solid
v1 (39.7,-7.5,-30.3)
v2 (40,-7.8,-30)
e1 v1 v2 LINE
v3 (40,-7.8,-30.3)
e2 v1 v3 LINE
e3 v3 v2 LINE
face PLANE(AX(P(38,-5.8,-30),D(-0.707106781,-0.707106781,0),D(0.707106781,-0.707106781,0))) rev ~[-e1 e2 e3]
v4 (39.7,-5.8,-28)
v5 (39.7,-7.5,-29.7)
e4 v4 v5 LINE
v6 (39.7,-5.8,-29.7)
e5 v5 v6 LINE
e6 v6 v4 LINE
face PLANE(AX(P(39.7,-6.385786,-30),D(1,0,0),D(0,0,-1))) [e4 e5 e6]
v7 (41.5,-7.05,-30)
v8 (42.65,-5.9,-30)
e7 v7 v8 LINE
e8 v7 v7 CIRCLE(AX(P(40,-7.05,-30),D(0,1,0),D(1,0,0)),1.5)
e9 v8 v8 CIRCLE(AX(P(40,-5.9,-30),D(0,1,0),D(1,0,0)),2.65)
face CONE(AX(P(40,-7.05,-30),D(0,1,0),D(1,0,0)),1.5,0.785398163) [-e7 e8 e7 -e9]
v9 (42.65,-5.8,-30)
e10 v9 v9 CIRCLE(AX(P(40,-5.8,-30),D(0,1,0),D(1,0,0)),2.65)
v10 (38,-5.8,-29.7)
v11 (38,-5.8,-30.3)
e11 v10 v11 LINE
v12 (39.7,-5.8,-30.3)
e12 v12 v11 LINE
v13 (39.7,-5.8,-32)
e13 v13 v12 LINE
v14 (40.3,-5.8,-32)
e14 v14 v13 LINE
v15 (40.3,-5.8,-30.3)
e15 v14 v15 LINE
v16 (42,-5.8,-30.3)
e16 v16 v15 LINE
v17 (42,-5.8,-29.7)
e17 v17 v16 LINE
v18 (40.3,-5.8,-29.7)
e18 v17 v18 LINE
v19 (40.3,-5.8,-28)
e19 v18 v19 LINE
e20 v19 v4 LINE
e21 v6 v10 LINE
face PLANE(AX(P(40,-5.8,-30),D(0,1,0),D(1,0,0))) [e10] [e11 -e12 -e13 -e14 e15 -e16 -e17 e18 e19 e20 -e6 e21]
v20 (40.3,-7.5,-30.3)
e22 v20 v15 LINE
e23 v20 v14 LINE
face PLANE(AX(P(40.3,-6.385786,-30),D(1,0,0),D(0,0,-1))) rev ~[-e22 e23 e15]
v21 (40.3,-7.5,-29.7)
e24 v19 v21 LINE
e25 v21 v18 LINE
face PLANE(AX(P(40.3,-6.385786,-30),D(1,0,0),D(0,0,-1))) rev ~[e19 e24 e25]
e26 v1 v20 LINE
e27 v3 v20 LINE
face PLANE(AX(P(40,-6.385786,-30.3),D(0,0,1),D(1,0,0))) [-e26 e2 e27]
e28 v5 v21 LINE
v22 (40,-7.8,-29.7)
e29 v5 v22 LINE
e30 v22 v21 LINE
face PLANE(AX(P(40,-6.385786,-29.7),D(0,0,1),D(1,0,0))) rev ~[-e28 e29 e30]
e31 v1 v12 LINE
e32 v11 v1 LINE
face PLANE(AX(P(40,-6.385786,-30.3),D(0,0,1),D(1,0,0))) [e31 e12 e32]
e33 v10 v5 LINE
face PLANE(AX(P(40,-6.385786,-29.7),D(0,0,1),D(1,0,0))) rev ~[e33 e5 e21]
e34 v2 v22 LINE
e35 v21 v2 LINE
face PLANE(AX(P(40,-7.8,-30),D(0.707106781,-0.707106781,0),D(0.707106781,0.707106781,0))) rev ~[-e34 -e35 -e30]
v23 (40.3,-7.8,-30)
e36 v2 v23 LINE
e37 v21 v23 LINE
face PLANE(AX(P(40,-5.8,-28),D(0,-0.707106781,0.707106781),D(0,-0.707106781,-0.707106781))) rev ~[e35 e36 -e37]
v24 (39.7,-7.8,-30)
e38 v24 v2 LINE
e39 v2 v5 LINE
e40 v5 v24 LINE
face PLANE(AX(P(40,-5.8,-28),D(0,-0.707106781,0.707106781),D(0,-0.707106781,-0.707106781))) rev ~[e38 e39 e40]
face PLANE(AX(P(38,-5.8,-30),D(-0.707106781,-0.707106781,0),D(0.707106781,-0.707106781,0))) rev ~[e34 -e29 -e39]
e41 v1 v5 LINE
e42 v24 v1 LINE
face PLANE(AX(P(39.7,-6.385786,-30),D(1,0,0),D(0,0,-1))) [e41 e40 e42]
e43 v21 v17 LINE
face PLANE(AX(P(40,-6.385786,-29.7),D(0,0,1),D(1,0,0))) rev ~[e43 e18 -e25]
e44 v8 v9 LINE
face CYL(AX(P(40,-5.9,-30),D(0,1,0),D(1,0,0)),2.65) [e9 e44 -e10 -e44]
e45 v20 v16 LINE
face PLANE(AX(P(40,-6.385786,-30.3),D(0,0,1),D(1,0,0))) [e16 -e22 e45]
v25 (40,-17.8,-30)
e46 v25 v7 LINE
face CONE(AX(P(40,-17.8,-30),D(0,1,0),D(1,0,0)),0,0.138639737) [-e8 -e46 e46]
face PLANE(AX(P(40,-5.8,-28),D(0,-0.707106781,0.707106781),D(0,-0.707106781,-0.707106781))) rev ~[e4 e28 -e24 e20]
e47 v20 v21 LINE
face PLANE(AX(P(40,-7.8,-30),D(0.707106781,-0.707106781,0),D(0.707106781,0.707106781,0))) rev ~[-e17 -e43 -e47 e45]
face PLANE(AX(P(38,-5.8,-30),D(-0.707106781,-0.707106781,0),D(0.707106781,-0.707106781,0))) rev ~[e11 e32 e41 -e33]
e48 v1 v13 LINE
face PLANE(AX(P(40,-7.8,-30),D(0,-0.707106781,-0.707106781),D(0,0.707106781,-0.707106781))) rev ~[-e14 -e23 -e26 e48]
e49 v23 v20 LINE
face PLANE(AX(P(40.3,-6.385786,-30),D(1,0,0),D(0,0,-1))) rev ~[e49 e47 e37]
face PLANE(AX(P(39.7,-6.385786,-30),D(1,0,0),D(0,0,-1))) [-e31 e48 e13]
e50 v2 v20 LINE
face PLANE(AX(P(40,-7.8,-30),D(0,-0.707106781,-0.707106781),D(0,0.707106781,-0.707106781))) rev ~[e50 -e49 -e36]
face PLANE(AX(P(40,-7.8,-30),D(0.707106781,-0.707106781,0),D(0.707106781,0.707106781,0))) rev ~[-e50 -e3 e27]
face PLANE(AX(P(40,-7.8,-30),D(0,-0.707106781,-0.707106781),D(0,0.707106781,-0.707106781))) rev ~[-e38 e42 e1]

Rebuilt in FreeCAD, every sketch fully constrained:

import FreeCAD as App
import Part
import Sketcher
Q = App.Units.Quantity

doc = App.newDocument("Part")
body = doc.addObject("PartDesign::Body", "Body")

# Sketch on XZ plane
sketch1 = doc.addObject("Sketcher::SketchObject", "Sketch")
body.addObject(sketch1)
sketch1.AttachmentSupport = (doc.XZ_Plane, [""])
sketch1.MapMode = "FlatFace"
sketch1.addGeometry([
    Part.LineSegment(App.Vector(0, 0, 0), App.Vector(0, -12, 0)),  # 0
    Part.LineSegment(App.Vector(0, -12, 0), App.Vector(1.5, -1.25, 0)),  # 1
    Part.LineSegment(App.Vector(1.5, -1.25, 0), App.Vector(2.65, -0.1, 0)),  # 2
    Part.LineSegment(App.Vector(2.65, -0.1, 0), App.Vector(2.65, 0, 0)),  # 3
    Part.LineSegment(App.Vector(2.65, 0, 0), App.Vector(0, 0, 0)),  # 4
], False)
sketch1.addConstraint([
    Sketcher.Constraint("Coincident", 0, 2, 1, 1),
    Sketcher.Constraint("Coincident", 1, 2, 2, 1),
    Sketcher.Constraint("Coincident", 2, 2, 3, 1),
    Sketcher.Constraint("Coincident", 3, 2, 4, 1),
    Sketcher.Constraint("Coincident", 4, 2, 0, 1),
    Sketcher.Constraint("Vertical", 0),
    Sketcher.Constraint("Vertical", 3),
    Sketcher.Constraint("Horizontal", 4),
    Sketcher.Constraint("Coincident", 4, 2, -1, 1),
    Sketcher.Constraint("DistanceY", 0, 2, 0, 1, 12.0),
    Sketcher.Constraint("Angle", 2, Q("45 deg")),
    Sketcher.Constraint("DistanceY", 3, 1, 3, 2, 0.1),
    Sketcher.Constraint("DistanceX", 4, 2, 4, 1, 2.65),
    Sketcher.Constraint("DistanceX", -1, 1, 1, 2, 1.5),
])
revolution = doc.addObject("PartDesign::Revolution", "Revolution")
body.addObject(revolution)
revolution.Profile = sketch1
revolution.ReferenceAxis = (sketch1, ["V_Axis"])
revolution.Angle = 360

# Sketch on XZ plane
sketch2 = doc.addObject("Sketcher::SketchObject", "Sketch001")
body.addObject(sketch2)
sketch2.AttachmentSupport = (doc.XZ_Plane, [""])
sketch2.MapMode = "FlatFace"
sketch2.addGeometry([
    Part.LineSegment(App.Vector(-2, 0, 0), App.Vector(0, -2, 0)),
    Part.LineSegment(App.Vector(0, -2, 0), App.Vector(2, 0, 0)),
    Part.LineSegment(App.Vector(2, 0, 0), App.Vector(-2, 0, 0)),
], False)
sketch2.addConstraint([
    Sketcher.Constraint("Coincident", 0, 2, 1, 1),
    Sketcher.Constraint("Coincident", 1, 2, 2, 1),
    Sketcher.Constraint("Coincident", 2, 2, 0, 1),
    Sketcher.Constraint("Horizontal", 2),
    Sketcher.Constraint("Symmetric", 1, 2, 2, 2, -1, 1),
    Sketcher.Constraint("PointOnObject", 0, 2, -2),
    Sketcher.Constraint("Perpendicular", 0, 1),
    Sketcher.Constraint("DistanceX", 2, 2, 2, 1, 4.0),
])
pocket1 = doc.addObject("PartDesign::Pocket", "Pocket")
body.addObject(pocket1)
pocket1.Profile = sketch2
pocket1.Length = 0.6
pocket1.Midplane = True
doc.recompute()

polarpattern = doc.addObject("PartDesign::PolarPattern", "PolarPattern")
body.addObject(polarpattern)
polarpattern.Originals = [pocket1]
polarpattern.Axis = (doc.Z_Axis, [""])
polarpattern.Angle = 90
polarpattern.Occurrences = 2
body.Tip = polarpattern
body2 = doc.addObject("PartDesign::Body", "Body001")
doc.recompute()

body.Placement = App.Placement(App.Vector(40, -5.8, -30), App.Rotation(App.Vector(-1, 0, 0), 90))
boolean = doc.addObject("PartDesign::Boolean", "Boolean")
body2.addObject(boolean)
boolean.Type = "Fuse"
boolean.addObjects([body])

doc.recompute()
